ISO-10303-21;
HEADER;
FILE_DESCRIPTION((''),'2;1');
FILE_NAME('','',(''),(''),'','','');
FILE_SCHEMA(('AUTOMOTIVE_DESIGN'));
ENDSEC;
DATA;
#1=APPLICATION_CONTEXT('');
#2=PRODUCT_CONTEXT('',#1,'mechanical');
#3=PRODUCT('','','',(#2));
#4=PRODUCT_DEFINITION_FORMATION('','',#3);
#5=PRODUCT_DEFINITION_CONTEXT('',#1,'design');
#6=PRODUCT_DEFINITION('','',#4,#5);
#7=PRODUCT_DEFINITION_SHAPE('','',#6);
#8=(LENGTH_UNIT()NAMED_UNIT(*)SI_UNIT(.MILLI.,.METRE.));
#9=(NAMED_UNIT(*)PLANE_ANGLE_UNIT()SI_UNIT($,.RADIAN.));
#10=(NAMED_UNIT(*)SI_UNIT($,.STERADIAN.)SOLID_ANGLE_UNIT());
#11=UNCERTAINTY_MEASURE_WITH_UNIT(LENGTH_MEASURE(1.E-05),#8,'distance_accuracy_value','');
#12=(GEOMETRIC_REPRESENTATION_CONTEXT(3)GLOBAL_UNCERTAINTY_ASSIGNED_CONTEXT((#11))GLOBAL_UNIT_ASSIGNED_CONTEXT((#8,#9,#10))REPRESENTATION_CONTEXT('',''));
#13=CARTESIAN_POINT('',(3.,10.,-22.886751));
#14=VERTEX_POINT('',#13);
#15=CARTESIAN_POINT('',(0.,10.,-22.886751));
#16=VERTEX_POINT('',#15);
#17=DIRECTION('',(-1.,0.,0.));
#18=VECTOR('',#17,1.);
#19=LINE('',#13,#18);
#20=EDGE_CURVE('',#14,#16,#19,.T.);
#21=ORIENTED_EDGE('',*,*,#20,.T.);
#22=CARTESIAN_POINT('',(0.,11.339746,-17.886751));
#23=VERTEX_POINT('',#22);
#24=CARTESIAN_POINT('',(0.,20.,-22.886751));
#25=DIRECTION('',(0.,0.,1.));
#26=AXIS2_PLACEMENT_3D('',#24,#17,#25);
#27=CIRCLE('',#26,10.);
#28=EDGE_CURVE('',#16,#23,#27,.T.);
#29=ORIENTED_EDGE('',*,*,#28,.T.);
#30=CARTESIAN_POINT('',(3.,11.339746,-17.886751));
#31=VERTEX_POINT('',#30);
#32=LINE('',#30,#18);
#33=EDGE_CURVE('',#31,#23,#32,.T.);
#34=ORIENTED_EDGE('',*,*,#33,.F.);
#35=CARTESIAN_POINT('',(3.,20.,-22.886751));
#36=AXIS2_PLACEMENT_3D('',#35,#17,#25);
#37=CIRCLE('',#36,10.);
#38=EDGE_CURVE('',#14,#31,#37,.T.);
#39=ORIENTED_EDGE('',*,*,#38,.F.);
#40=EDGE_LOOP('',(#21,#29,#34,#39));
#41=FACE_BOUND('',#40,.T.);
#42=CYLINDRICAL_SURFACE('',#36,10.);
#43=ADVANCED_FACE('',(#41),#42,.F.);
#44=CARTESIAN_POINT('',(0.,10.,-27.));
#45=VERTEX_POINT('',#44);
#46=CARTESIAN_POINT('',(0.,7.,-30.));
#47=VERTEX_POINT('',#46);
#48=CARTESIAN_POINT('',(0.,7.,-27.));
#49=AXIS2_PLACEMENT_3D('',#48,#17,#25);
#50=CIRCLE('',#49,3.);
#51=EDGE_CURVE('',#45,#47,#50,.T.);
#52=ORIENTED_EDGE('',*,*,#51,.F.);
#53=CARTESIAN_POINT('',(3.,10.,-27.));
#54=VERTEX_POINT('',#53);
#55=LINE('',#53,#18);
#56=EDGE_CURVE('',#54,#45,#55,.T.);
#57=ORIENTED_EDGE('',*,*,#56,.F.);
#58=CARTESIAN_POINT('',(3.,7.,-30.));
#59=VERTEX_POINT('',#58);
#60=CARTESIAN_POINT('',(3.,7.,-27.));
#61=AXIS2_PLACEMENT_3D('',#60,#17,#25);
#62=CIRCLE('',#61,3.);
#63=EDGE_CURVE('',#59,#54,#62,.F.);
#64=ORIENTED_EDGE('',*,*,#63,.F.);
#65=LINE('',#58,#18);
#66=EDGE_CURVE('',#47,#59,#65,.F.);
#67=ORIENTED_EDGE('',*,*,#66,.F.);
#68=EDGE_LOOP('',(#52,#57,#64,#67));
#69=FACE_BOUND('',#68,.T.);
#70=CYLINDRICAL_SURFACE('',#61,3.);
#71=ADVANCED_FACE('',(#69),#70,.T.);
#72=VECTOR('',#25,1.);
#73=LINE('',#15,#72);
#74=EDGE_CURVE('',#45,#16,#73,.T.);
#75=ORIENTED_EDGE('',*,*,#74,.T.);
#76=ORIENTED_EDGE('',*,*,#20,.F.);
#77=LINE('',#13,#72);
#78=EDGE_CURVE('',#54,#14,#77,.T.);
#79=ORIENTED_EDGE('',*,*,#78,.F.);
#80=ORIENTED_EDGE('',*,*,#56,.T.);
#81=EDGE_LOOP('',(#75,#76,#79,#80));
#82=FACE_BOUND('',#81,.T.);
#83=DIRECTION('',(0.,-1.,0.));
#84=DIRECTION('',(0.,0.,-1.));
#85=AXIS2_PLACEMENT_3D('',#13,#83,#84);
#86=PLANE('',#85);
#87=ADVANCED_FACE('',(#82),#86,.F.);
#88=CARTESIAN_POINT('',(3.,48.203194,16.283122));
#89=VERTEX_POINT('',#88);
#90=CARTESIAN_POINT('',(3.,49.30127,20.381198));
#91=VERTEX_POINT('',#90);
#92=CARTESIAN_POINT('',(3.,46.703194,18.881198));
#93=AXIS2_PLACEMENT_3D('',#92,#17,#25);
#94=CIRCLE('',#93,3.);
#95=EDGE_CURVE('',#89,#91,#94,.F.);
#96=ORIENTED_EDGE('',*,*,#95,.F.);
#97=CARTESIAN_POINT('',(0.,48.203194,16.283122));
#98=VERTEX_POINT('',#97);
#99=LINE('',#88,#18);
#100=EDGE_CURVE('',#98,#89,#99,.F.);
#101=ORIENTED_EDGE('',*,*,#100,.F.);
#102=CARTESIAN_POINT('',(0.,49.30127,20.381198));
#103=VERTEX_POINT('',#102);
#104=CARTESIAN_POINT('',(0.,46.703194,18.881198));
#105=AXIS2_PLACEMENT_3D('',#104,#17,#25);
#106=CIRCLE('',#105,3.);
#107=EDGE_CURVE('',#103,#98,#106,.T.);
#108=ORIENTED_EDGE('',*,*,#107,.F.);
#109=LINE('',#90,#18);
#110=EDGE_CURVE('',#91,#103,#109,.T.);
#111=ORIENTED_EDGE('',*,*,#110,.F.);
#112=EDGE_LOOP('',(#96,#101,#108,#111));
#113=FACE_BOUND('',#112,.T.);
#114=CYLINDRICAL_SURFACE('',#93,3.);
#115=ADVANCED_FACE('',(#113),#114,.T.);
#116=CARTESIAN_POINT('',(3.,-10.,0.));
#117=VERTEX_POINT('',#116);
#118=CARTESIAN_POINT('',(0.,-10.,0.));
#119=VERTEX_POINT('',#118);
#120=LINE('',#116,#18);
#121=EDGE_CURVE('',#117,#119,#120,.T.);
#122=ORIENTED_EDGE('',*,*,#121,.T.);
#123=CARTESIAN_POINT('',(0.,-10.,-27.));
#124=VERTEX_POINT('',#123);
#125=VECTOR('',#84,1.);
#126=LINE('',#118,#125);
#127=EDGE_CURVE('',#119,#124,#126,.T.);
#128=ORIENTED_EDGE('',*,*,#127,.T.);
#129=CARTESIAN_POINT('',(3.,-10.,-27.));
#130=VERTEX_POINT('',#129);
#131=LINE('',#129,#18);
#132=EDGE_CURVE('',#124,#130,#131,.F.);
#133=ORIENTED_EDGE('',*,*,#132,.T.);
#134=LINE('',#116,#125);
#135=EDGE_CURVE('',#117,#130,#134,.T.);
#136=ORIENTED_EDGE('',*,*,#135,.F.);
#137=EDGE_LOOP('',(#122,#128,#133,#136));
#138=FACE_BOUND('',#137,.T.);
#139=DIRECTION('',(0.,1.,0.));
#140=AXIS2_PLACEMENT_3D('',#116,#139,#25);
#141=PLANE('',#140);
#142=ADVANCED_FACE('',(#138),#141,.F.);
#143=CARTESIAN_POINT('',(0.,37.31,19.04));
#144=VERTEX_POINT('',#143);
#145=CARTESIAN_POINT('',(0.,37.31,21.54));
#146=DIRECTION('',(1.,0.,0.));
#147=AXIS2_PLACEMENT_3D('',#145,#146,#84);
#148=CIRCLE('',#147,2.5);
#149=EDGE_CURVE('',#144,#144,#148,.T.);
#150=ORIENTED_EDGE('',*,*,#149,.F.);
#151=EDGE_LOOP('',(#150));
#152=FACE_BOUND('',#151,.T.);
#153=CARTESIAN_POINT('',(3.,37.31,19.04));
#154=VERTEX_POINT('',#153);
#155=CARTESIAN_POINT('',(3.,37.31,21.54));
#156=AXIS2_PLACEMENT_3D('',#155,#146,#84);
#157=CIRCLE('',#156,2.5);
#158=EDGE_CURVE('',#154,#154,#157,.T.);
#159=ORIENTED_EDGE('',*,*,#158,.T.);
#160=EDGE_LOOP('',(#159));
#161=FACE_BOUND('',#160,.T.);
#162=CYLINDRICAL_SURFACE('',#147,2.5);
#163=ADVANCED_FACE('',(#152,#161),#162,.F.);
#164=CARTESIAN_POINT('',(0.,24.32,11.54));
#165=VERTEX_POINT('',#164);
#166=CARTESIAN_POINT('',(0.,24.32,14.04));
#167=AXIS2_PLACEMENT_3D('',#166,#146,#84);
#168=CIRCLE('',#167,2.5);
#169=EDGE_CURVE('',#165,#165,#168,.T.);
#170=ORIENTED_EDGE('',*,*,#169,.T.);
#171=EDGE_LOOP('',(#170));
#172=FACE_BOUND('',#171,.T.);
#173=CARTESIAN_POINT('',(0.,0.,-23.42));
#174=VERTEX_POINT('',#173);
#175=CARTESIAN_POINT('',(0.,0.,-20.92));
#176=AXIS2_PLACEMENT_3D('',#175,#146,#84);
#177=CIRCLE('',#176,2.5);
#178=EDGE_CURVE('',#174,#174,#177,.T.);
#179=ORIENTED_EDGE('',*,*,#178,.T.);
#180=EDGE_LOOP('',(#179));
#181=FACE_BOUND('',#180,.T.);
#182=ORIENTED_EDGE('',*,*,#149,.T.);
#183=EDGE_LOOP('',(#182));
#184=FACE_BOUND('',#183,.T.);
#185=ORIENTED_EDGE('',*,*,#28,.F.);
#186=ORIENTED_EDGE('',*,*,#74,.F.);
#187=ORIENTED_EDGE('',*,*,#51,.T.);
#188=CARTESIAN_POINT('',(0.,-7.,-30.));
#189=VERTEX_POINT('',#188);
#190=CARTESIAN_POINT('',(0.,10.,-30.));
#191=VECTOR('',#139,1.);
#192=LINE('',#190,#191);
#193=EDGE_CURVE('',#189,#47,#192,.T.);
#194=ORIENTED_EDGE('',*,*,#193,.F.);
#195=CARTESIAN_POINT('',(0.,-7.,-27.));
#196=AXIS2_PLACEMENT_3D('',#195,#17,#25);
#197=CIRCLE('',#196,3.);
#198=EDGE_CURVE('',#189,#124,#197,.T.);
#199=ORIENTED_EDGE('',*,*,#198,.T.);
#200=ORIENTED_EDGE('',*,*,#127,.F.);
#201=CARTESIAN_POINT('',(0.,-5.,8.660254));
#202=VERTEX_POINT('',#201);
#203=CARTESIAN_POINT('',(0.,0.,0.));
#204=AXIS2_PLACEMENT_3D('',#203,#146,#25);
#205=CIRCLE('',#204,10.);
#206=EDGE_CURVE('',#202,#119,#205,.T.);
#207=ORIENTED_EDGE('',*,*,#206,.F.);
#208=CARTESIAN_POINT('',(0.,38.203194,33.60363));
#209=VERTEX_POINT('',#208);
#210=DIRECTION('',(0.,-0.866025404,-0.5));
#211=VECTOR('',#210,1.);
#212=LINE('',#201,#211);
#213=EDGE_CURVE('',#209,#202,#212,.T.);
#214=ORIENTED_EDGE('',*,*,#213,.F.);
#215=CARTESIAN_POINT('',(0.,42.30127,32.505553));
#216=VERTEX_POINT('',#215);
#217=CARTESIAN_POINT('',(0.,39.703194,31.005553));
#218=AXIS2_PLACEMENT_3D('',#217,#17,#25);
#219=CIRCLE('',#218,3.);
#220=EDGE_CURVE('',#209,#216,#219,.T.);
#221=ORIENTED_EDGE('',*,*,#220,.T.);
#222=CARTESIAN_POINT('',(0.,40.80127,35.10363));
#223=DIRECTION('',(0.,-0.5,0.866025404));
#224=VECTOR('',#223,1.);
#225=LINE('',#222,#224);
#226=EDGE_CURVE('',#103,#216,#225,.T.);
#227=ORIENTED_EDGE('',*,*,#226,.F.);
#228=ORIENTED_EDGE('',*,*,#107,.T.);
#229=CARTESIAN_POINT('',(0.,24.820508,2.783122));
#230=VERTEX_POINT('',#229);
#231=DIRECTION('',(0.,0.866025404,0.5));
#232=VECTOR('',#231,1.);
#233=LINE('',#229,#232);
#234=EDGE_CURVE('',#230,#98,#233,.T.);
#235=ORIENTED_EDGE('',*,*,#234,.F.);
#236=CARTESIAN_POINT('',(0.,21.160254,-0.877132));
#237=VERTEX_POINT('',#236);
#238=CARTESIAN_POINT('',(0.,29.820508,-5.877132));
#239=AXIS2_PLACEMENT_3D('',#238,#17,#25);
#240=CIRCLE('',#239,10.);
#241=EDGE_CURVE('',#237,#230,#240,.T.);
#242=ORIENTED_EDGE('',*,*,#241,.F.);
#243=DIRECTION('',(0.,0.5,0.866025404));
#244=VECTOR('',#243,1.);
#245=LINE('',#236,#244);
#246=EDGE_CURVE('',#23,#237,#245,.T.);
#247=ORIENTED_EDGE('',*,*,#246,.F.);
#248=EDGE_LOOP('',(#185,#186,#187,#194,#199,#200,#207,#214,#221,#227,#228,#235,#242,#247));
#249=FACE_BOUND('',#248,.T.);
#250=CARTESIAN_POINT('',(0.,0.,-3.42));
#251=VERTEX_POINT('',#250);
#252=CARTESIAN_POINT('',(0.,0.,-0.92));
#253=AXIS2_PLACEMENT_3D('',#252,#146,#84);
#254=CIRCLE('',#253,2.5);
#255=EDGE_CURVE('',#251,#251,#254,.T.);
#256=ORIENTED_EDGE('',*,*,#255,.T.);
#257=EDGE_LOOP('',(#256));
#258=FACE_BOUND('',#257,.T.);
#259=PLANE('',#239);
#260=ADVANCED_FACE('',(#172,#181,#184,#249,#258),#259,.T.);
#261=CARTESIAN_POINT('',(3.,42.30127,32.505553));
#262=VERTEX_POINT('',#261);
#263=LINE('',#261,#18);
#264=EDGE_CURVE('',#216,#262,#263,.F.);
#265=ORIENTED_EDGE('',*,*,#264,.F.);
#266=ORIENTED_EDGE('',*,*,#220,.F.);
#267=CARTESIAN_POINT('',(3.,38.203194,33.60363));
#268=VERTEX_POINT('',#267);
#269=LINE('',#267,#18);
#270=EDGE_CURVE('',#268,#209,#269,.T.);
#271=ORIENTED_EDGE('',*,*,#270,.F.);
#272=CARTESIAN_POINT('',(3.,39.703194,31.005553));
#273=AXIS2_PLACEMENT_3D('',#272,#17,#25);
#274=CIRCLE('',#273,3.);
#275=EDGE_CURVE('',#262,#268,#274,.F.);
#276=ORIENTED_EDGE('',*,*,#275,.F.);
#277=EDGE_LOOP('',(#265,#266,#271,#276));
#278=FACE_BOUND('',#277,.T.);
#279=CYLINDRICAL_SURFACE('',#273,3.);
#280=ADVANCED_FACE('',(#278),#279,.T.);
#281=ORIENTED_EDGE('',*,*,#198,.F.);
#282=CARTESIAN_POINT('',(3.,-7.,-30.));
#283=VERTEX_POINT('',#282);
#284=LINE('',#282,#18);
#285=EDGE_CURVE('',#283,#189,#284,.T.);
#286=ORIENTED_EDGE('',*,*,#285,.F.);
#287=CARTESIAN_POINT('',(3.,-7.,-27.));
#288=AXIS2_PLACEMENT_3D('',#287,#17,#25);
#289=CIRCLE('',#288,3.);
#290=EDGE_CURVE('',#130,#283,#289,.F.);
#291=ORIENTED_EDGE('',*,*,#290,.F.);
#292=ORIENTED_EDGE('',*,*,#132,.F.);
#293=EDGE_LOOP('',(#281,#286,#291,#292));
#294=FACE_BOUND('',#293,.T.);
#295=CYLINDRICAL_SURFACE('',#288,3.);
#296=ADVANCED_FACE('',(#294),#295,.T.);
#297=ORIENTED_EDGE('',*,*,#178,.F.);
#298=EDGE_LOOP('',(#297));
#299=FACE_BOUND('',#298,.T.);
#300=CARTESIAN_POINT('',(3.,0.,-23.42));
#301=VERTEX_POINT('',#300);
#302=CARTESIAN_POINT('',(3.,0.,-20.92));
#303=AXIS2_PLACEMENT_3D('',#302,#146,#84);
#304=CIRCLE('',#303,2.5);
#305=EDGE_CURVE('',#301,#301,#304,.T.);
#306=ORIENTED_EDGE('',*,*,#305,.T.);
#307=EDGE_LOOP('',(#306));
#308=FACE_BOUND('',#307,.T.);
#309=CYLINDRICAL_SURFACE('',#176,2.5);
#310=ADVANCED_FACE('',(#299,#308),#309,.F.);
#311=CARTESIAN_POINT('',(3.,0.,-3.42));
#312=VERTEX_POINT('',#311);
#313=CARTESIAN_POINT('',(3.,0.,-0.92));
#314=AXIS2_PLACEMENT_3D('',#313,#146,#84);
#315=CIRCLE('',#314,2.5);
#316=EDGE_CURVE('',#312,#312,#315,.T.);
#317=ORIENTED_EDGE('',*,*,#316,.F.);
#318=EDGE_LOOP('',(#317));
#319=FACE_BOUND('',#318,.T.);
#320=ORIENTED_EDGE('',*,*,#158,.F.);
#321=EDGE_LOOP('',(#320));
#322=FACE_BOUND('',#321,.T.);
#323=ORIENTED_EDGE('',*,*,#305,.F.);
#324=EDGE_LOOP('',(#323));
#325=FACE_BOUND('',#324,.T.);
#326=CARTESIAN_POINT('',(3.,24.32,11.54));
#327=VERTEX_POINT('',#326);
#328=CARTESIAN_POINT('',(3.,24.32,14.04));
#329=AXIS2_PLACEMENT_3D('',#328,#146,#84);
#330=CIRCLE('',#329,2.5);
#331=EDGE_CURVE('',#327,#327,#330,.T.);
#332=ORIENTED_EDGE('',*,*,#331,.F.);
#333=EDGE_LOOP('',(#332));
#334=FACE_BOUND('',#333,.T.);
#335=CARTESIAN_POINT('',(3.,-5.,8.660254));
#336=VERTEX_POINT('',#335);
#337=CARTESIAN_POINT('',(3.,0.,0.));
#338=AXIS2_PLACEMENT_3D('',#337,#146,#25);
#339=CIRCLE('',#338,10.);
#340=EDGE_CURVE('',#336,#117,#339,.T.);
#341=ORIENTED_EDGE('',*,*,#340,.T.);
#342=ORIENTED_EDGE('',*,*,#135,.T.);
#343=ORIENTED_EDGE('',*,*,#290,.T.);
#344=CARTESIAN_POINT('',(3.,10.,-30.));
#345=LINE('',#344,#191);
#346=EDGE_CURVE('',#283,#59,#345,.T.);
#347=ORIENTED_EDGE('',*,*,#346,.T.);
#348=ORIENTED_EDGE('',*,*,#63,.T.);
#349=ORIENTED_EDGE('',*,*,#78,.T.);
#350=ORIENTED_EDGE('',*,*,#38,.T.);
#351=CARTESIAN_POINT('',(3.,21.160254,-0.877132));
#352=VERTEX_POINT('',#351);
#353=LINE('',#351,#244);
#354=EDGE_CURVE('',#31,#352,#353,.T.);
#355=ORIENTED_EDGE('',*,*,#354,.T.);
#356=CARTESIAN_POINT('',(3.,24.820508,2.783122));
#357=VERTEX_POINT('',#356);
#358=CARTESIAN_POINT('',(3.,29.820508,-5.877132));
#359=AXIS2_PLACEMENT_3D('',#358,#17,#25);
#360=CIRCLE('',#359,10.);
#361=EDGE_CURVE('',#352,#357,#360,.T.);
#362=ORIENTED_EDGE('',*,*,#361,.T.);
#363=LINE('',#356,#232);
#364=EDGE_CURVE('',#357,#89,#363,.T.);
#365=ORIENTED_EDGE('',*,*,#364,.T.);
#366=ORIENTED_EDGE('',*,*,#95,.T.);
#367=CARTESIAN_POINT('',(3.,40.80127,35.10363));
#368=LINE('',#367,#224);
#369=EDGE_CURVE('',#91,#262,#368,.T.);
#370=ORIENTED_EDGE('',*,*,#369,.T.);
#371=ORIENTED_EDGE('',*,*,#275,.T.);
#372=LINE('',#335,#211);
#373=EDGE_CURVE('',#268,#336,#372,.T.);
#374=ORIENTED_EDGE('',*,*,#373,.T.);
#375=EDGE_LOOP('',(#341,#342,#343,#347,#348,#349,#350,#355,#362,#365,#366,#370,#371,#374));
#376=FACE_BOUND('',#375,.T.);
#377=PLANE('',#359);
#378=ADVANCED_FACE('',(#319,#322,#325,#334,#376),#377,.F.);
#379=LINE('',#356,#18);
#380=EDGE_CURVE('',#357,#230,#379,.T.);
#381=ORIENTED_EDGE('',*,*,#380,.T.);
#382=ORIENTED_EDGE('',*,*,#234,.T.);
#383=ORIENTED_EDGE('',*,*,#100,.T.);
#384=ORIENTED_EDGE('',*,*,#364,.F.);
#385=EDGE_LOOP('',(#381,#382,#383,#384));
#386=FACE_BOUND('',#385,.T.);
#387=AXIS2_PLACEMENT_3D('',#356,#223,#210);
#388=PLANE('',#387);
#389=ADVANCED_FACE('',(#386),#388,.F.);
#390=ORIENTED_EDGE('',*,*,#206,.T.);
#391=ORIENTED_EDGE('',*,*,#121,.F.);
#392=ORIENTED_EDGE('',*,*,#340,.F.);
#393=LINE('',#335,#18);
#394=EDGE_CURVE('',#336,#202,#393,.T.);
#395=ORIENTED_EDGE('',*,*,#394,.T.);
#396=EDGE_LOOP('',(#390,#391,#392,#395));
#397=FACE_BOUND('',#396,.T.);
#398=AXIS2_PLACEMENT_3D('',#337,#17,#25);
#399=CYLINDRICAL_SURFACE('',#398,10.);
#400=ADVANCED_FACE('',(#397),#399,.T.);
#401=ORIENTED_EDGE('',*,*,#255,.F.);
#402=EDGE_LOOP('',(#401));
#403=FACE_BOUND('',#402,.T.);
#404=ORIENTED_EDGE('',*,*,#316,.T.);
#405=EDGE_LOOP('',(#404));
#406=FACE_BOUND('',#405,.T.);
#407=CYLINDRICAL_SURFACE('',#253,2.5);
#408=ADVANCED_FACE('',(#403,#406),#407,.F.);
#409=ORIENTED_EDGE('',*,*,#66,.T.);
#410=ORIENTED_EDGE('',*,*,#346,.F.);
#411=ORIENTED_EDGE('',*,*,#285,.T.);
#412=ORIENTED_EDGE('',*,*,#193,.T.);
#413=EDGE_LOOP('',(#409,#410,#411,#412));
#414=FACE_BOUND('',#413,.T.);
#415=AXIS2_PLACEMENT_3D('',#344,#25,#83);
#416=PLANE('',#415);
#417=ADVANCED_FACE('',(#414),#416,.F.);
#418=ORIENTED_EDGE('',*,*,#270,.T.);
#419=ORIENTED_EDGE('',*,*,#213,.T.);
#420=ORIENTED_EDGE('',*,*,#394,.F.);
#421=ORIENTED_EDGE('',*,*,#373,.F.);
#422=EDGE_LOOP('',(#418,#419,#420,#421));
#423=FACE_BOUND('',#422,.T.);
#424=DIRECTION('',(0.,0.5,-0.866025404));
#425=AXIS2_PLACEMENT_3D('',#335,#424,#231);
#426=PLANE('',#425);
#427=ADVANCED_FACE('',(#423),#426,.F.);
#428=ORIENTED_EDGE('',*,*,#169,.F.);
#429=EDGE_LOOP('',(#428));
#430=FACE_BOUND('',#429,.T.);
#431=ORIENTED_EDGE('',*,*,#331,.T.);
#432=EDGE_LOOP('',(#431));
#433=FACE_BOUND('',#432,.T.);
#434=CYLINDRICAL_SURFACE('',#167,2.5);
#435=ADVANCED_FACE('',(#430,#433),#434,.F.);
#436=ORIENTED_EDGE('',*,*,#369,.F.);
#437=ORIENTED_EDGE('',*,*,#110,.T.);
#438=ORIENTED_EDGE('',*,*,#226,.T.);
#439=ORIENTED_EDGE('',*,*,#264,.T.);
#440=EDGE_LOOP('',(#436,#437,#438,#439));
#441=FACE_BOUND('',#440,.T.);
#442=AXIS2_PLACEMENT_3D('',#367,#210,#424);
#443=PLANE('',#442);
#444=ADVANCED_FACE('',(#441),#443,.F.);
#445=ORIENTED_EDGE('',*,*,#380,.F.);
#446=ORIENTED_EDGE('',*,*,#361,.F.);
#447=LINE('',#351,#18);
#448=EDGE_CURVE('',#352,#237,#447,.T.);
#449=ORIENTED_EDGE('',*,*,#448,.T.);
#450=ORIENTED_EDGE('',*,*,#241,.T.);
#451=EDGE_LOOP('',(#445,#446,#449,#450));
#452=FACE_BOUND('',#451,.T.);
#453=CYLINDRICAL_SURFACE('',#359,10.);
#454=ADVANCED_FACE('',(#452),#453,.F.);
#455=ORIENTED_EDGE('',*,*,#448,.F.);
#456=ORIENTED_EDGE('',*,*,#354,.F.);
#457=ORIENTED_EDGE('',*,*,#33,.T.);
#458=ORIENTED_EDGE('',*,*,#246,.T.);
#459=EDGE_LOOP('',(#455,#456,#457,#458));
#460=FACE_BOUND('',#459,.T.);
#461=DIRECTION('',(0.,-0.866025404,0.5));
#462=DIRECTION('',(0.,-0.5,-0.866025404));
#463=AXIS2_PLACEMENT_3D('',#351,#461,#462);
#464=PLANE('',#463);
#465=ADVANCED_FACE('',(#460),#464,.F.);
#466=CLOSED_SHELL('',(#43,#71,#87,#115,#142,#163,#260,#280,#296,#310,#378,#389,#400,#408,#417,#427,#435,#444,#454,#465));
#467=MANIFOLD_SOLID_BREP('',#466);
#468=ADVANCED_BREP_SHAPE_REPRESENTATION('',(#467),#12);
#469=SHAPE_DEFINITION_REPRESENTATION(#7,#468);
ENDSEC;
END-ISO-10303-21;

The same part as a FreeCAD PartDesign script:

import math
import FreeCAD as App
import Part
import Sketcher

V = App.Vector
Q = App.Units.Quantity


def edges_at(feature, points):
    """Names of the edges that pass closest to the given points."""
    edges = feature.Shape.Edges
    near = lambda p: min(range(len(edges)), key=lambda i: edges[i].distToShape(Part.Vertex(*p))[0])
    return sorted({f"Edge{near(p) + 1}" for p in points})

doc = App.newDocument("Part")
body = doc.addObject("PartDesign::Body", "Body")

# Sketch on YZ plane
sketch1 = body.newObject("Sketcher::SketchObject", "Sketch")
sketch1.AttachmentSupport = (doc.getObject("YZ_Plane"), [""])
sketch1.MapMode = "FlatFace"
sketch1.addGeometry([
    Part.LineSegment(V(10, -30, 0), V(10, -23, 0)),  # 0
    Part.ArcOfCircle(Part.Circle(V(20, -23, 0), V(0, 0, 1), 10), math.radians(150), math.radians(180)),  # 1
    Part.LineSegment(V(11, -18, 0), V(21, -1, 0)),  # 2
    Part.ArcOfCircle(Part.Circle(V(30, -6, 0), V(0, 0, 1), 10), math.radians(120), math.radians(150)),  # 3
    Part.LineSegment(V(25, 3, 0), V(51, 18, 0)),  # 4
    Part.LineSegment(V(51, 18, 0), V(41, 35, 0)),  # 5
    Part.LineSegment(V(41, 35, 0), V(-5, 9, 0)),  # 6
    Part.ArcOfCircle(Part.Circle(V(0, 0, 0), V(0, 0, 1), 10), math.radians(120), math.radians(180)),  # 7
    Part.LineSegment(V(-10, 0, 0), V(-10, -30, 0)),  # 8
    Part.LineSegment(V(-10, -30, 0), V(10, -30, 0)),  # 9
], False)
sketch1.addConstraint([
    Sketcher.Constraint("Tangent", 0, 2, 1, 2),
    Sketcher.Constraint("Tangent", 1, 1, 2, 1),
    Sketcher.Constraint("Tangent", 2, 2, 3, 2),
    Sketcher.Constraint("Tangent", 3, 1, 4, 1),
    Sketcher.Constraint("Coincident", 4, 2, 5, 1),
    Sketcher.Constraint("Coincident", 5, 2, 6, 1),
    Sketcher.Constraint("Tangent", 6, 2, 7, 1),
    Sketcher.Constraint("Tangent", 7, 2, 8, 1),
    Sketcher.Constraint("Coincident", 8, 2, 9, 1),
    Sketcher.Constraint("Coincident", 9, 2, 0, 1),
    Sketcher.Constraint("Vertical", 0),
    Sketcher.Constraint("Vertical", 8),
    Sketcher.Constraint("Horizontal", 9),
    Sketcher.Constraint("Coincident", 7, 3, -1, 1),
    Sketcher.Constraint("Equal", 1, 3),
    Sketcher.Constraint("Equal", 3, 7),
    Sketcher.Constraint("Perpendicular", 4, 5),
    Sketcher.Constraint("Perpendicular", 5, 6),
    Sketcher.Constraint("Radius", 1, 10.0),
    Sketcher.Constraint("DistanceX", 9, 1, 9, 2, 20.0),
    Sketcher.Constraint("DistanceY", 8, 2, 8, 1, 30.0),
    Sketcher.Constraint("Angle", 2, Q("60 deg")),
    Sketcher.Constraint("Angle", 4, Q("30 deg")),
    Sketcher.Constraint("Distance", 4, 30.0),
    Sketcher.Constraint("Distance", 5, 20.0),
    Sketcher.Constraint("DistanceY", 0, 1, 0, 2, 7.113249),
])
pad1 = body.newObject("PartDesign::Pad", "Pad")
pad1.Profile = sketch1
pad1.Length = 3

# Sketch on YZ plane
sketch2 = body.newObject("Sketcher::SketchObject", "Sketch001")
sketch2.AttachmentSupport = (doc.getObject("YZ_Plane"), [""])
sketch2.MapMode = "FlatFace"
sketch2.AttachmentOffset = App.Placement(V(0, 0, 3), App.Rotation())
sketch2.addGeometry([
    Part.Circle(V(0, -20.9, 0), V(0, 0, 1), 2.5),
    Part.Circle(V(0, -0.9, 0), V(0, 0, 1), 2.5),
    Part.Circle(V(24.3, 14, 0), V(0, 0, 1), 2.5),
    Part.Circle(V(37.3, 21.5, 0), V(0, 0, 1), 2.5),
], False)
sketch2.addConstraint([
    Sketcher.Constraint("Equal", 0, 1),
    Sketcher.Constraint("Equal", 1, 2),
    Sketcher.Constraint("Equal", 2, 3),
    Sketcher.Constraint("PointOnObject", 0, 3, -2),
    Sketcher.Constraint("PointOnObject", 1, 3, -2),
    Sketcher.Constraint("Diameter", 0, 5.0),
    Sketcher.Constraint("DistanceY", 0, 3, 1, 3, 20.0),
    Sketcher.Constraint("DistanceY", 2, 3, 3, 3, 7.5),
    Sketcher.Constraint("DistanceY", 0, 3, -1, 1, 20.92),
    Sketcher.Constraint("DistanceX", -1, 1, 2, 3, 24.32),
    Sketcher.Constraint("DistanceY", -1, 1, 2, 3, 14.04),
    Sketcher.Constraint("DistanceX", -1, 1, 3, 3, 37.31),
])
pocket1 = body.newObject("PartDesign::Pocket", "Pocket")
pocket1.Profile = sketch2
pocket1.Type = "ThroughAll"
doc.recompute()

fillet = body.newObject("PartDesign::Fillet", "Fillet")
fillet.Base = (pocket1, edges_at(pocket1, [
    (1.5, 50.801, 17.783),
    (1.5, 10, -30),
    (1.5, -10, -30),
    (1.5, 40.801, 35.104),
]))
fillet.Radius = 3

doc.recompute()
